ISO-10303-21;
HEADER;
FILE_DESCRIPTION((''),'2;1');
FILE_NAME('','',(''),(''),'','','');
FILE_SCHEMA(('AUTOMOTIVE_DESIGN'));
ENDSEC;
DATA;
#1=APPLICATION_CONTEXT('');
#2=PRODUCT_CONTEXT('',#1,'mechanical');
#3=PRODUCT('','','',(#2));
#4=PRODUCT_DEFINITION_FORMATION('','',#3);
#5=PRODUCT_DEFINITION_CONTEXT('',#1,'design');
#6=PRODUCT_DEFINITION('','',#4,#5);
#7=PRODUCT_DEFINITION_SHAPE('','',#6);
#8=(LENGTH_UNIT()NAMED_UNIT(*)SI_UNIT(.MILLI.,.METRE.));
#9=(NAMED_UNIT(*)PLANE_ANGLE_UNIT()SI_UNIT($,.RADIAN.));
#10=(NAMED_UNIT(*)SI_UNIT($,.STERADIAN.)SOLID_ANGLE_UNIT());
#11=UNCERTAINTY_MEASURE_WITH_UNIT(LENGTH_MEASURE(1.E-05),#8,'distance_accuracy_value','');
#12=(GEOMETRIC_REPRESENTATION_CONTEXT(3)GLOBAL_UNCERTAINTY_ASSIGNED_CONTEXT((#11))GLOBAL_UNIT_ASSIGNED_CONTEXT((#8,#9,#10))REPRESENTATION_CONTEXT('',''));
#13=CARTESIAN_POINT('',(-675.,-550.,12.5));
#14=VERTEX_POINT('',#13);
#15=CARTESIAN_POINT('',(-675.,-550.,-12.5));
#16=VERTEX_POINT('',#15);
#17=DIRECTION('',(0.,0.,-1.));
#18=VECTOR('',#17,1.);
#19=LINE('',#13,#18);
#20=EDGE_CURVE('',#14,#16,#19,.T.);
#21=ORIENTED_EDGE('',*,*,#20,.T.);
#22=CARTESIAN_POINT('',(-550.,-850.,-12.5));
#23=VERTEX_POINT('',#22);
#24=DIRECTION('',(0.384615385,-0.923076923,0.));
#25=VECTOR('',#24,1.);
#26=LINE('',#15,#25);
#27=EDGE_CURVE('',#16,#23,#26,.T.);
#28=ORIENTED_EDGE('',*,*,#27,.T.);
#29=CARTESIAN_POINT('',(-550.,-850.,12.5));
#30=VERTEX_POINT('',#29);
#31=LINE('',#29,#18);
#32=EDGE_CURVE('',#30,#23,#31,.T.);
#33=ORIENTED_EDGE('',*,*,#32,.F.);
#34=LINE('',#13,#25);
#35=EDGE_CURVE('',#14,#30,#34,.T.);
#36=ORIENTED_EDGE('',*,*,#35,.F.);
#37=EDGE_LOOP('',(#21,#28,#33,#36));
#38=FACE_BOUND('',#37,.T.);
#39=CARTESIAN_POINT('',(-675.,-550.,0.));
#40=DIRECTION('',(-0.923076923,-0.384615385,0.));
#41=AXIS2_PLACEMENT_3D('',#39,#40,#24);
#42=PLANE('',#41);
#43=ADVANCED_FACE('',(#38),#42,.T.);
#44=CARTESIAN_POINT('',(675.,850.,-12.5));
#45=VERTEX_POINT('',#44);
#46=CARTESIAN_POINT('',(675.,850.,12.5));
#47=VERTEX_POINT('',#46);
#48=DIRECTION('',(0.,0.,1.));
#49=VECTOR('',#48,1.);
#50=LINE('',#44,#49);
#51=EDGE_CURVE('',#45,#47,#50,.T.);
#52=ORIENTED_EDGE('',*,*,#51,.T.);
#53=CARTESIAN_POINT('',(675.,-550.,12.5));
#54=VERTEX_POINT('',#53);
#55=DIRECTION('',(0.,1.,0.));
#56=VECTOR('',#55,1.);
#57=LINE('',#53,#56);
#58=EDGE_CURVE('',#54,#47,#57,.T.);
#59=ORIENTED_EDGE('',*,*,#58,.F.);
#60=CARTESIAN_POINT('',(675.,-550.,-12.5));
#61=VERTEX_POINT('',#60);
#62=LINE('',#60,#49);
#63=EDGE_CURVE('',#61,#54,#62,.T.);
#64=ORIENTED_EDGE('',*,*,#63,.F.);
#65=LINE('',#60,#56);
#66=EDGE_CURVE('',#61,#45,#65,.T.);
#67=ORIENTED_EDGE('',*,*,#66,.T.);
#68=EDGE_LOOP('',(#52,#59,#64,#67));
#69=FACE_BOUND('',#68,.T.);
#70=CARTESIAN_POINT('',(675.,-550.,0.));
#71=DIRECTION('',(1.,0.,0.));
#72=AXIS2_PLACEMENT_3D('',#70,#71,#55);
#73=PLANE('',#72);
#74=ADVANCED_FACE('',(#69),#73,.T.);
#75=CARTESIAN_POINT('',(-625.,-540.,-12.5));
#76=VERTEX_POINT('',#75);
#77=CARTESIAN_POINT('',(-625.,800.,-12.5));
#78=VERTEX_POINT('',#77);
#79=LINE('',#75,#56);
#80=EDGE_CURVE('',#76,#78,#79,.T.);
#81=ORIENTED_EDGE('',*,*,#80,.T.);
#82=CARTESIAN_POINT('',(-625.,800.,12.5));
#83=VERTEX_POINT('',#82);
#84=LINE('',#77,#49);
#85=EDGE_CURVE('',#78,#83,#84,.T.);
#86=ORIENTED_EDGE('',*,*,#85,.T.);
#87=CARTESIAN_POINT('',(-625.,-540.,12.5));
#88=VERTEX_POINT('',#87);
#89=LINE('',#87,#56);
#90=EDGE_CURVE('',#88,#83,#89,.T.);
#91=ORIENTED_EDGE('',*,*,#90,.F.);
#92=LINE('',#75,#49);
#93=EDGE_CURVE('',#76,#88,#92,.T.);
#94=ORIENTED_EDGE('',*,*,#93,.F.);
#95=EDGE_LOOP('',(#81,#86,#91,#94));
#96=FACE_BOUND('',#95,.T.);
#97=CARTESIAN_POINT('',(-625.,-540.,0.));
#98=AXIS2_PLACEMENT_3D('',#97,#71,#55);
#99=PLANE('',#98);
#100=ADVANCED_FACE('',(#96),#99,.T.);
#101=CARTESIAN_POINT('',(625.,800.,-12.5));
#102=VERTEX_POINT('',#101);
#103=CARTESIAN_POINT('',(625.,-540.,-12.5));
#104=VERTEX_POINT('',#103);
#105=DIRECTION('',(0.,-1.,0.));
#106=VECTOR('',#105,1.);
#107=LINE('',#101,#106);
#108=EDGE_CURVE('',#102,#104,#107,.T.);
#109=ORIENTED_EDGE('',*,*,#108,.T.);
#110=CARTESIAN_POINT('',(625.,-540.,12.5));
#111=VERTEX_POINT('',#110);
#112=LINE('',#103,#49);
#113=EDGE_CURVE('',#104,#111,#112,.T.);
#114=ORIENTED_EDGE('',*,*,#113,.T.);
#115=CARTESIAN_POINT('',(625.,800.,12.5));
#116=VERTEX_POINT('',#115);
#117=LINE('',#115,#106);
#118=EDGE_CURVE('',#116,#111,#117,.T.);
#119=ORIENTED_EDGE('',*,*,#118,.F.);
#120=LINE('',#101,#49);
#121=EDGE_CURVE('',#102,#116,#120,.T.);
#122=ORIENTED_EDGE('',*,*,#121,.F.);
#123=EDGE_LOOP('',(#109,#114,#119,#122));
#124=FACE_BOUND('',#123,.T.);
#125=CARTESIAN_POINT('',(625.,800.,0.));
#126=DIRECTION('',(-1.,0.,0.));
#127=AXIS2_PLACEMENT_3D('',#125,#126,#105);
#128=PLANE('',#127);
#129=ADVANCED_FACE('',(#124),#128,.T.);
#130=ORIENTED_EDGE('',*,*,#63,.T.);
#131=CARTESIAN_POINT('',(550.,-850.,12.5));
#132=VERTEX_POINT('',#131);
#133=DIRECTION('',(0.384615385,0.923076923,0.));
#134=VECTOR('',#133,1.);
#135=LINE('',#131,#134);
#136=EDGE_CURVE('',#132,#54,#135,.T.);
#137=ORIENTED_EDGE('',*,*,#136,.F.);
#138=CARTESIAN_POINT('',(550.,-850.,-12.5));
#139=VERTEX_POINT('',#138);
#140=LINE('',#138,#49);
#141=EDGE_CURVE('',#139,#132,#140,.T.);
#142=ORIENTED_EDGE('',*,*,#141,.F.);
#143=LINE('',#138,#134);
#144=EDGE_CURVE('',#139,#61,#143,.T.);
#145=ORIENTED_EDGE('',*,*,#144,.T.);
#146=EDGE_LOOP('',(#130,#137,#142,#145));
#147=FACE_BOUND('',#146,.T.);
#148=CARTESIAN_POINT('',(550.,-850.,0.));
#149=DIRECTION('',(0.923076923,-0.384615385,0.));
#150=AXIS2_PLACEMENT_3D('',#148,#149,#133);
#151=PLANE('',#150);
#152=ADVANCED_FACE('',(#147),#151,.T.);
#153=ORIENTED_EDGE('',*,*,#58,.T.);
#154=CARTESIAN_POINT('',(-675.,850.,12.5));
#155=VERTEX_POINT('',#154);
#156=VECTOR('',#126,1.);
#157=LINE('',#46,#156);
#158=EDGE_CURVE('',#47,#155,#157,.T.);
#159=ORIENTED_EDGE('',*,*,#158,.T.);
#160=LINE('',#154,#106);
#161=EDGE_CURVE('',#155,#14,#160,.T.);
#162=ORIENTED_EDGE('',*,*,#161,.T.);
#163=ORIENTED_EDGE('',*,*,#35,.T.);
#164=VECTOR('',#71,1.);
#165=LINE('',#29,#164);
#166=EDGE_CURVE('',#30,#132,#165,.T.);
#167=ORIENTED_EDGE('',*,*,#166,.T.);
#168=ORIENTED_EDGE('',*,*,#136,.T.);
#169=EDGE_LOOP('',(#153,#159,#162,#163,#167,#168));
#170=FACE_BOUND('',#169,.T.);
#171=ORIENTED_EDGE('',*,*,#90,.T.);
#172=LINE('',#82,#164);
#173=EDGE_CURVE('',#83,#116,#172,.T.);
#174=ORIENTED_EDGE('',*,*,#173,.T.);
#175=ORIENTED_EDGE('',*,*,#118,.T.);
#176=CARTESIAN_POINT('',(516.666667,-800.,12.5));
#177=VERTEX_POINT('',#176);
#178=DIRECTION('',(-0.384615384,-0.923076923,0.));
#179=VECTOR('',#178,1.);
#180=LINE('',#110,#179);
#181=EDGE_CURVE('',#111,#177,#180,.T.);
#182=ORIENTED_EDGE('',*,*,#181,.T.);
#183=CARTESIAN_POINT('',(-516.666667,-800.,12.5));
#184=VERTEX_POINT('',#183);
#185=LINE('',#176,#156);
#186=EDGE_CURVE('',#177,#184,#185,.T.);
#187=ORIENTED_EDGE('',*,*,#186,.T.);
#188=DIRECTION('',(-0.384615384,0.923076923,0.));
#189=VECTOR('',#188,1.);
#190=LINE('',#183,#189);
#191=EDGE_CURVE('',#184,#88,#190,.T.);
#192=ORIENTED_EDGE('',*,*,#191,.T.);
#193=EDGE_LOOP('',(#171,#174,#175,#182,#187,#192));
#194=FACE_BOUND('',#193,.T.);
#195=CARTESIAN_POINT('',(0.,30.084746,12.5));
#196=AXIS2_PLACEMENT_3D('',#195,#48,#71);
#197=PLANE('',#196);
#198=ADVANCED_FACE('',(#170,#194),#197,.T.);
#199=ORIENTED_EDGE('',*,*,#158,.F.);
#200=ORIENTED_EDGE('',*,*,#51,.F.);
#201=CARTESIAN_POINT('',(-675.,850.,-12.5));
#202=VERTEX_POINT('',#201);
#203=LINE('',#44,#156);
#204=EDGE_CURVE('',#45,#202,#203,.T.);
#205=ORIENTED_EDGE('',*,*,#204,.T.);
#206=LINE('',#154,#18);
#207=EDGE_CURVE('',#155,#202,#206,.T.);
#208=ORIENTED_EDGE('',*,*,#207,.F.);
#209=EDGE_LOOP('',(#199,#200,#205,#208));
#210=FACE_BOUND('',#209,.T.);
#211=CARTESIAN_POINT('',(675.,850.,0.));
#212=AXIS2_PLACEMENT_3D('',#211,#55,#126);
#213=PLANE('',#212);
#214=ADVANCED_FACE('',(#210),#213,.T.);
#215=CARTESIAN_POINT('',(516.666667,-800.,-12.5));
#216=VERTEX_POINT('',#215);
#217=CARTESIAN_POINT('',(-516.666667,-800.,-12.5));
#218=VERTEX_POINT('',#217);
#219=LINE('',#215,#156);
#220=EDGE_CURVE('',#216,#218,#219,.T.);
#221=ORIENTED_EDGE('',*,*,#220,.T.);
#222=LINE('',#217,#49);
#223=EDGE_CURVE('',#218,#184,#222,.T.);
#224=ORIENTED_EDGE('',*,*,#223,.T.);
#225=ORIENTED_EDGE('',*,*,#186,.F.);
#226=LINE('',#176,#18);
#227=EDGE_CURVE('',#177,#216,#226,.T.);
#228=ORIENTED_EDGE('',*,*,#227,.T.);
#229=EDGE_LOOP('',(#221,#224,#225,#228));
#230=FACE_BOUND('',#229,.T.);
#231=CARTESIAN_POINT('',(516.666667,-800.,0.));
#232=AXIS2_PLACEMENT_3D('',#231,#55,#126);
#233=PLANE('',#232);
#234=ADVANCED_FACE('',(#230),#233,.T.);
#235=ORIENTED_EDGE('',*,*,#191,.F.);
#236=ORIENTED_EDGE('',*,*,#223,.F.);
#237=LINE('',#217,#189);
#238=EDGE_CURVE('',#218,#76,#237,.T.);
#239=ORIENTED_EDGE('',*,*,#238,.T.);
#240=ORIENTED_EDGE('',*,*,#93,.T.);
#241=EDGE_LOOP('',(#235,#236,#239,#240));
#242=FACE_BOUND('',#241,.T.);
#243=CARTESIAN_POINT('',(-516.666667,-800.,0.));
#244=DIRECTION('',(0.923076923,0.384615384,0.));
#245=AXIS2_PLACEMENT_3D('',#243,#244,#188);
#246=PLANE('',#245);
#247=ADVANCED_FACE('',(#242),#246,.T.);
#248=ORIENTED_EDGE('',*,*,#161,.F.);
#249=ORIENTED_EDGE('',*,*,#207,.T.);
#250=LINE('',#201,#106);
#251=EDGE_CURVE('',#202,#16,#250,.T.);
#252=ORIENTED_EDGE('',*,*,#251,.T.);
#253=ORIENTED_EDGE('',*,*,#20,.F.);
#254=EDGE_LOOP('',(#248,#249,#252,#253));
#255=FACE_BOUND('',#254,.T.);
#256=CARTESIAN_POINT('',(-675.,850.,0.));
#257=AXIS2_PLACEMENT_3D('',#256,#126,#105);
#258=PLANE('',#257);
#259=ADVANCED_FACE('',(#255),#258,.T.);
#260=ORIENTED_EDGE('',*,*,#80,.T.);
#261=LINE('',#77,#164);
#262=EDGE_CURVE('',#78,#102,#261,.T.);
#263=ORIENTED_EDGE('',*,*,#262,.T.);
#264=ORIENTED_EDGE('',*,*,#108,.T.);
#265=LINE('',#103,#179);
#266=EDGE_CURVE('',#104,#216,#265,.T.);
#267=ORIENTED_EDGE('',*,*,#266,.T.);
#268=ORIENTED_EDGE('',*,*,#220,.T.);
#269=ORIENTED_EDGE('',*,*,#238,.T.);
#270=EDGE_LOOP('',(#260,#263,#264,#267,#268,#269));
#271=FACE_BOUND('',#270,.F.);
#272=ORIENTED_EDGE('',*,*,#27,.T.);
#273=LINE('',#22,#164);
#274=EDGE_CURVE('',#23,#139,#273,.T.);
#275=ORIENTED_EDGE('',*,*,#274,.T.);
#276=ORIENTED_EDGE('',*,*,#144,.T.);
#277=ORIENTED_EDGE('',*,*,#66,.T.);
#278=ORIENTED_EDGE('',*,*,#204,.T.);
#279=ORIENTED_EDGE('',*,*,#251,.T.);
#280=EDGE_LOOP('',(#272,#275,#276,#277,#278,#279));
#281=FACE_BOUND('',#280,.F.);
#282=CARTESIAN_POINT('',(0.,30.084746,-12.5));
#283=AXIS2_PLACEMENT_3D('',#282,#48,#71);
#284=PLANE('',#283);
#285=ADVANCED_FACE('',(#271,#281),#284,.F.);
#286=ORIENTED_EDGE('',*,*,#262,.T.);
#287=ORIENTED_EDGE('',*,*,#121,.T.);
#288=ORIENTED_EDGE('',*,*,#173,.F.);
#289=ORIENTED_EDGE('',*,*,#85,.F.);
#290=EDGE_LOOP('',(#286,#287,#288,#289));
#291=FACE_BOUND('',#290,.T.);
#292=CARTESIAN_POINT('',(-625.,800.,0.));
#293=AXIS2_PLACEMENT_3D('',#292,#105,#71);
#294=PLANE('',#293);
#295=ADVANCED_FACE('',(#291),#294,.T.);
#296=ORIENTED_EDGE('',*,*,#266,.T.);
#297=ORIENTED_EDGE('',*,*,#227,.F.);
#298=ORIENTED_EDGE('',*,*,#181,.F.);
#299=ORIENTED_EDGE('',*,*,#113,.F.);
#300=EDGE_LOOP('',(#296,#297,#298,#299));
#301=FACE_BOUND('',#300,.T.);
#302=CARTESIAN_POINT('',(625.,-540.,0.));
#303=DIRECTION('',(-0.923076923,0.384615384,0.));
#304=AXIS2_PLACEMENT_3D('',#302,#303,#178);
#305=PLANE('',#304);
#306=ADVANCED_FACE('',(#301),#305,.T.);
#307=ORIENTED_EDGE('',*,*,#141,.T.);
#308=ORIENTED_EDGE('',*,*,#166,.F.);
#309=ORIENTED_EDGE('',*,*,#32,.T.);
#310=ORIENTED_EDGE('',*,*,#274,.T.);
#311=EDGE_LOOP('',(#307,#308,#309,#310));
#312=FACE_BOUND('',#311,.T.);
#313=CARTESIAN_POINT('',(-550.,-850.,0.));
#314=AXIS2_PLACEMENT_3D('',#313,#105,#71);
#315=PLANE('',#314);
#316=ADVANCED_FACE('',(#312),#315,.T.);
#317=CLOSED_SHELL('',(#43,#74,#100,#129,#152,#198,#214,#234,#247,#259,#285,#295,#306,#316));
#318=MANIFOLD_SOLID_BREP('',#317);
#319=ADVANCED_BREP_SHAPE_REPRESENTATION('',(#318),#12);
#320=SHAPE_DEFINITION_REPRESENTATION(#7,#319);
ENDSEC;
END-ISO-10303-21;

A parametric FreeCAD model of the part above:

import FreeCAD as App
import Part
import Sketcher


def add_polygon(sketch, points):
    """Adds a closed chain of lines whose ends are joined by coincident constraints."""
    first, n = sketch.GeometryCount, len(points)
    for a, b in zip(points, points[1:] + points[:1]):
        sketch.addGeometry(Part.LineSegment(App.Vector(*a, 0), App.Vector(*b, 0)), False)
    for i in range(n):
        sketch.addConstraint(Sketcher.Constraint("Coincident", first + i, 2, first + (i + 1) % n, 1))

doc = App.newDocument("Part")
params = doc.addObject("Spreadsheet::Sheet", "Params")
for row, (alias, value) in enumerate([
    ("sketch1_width", "1100 mm"),
    ("sketch1_width2", "1350 mm"),
    ("sketch1_width3", "1250 mm"),
    ("sketch1_height", "1400 mm"),
    ("sketch1_height2", "1340 mm"),
    ("pad1_length", "25 mm"),
], start=1):
    params.set(f"A{row}", alias)
    params.set(f"B{row}", "=" + value)
    params.setAlias(f"B{row}", alias)

body = doc.addObject("PartDesign::Body", "Body")

# Sketch on XY plane
sketch1 = body.newObject("Sketcher::SketchObject", "Sketch")
sketch1.AttachmentSupport = (doc.getObject("XY_Plane"), [""])
sketch1.MapMode = "FlatFace"
add_polygon(sketch1, [(-550, -850), (550, -850), (675, -550), (675, 850), (-675, 850), (-675, -550)])  # lines 0-5
add_polygon(sketch1, [(517, -800), (-517, -800), (-625, -540), (-625, 800), (625, 800), (625, -540)])  # lines 6-11
sketch1.addConstraint([
    Sketcher.Constraint("Horizontal", 0),
    Sketcher.Constraint("Vertical", 2),
    Sketcher.Constraint("Horizontal", 3),
    Sketcher.Constraint("Vertical", 4),
    Sketcher.Constraint("Horizontal", 6),
    Sketcher.Constraint("Vertical", 8),
    Sketcher.Constraint("Horizontal", 9),
    Sketcher.Constraint("Vertical", 10),
    Sketcher.Constraint("Symmetric", 1, 2, 4, 2, -2),
    Sketcher.Constraint("Symmetric", 7, 2, 10, 2, -2),
    Sketcher.Constraint("Parallel", 5, 7),
    Sketcher.Constraint("Parallel", 1, 11),
    Sketcher.Constraint("Equal", 1, 5),
    Sketcher.Constraint("DistanceX", 0, 1, 0, 2, 1100.0),
    Sketcher.Constraint("DistanceX", 3, 2, 3, 1, 1350.0),
    Sketcher.Constraint("DistanceX", 9, 1, 9, 2, 1250.0),
    Sketcher.Constraint("DistanceY", 2, 1, 2, 2, 1400.0),
    Sketcher.Constraint("DistanceY", 8, 1, 8, 2, 1340.0),
    Sketcher.Constraint("Distance", 1, 325.0),
    Sketcher.Constraint("DistanceY", 0, 2, -1, 1, 850.0),
    Sketcher.Constraint("DistanceY", 6, 2, -1, 1, 800.0),
    Sketcher.Constraint("DistanceY", 7, 2, -1, 1, 540.0),
])
sketch1.setExpression("Constraints[25]", "Params.sketch1_width")
sketch1.setExpression("Constraints[26]", "Params.sketch1_width2")
sketch1.setExpression("Constraints[27]", "Params.sketch1_width3")
sketch1.setExpression("Constraints[28]", "Params.sketch1_height")
sketch1.setExpression("Constraints[29]", "Params.sketch1_height2")
pad1 = body.newObject("PartDesign::Pad", "Pad")
pad1.Profile = sketch1
pad1.setExpression("Length", "Params.pad1_length")
pad1.Midplane = True

doc.recompute()
